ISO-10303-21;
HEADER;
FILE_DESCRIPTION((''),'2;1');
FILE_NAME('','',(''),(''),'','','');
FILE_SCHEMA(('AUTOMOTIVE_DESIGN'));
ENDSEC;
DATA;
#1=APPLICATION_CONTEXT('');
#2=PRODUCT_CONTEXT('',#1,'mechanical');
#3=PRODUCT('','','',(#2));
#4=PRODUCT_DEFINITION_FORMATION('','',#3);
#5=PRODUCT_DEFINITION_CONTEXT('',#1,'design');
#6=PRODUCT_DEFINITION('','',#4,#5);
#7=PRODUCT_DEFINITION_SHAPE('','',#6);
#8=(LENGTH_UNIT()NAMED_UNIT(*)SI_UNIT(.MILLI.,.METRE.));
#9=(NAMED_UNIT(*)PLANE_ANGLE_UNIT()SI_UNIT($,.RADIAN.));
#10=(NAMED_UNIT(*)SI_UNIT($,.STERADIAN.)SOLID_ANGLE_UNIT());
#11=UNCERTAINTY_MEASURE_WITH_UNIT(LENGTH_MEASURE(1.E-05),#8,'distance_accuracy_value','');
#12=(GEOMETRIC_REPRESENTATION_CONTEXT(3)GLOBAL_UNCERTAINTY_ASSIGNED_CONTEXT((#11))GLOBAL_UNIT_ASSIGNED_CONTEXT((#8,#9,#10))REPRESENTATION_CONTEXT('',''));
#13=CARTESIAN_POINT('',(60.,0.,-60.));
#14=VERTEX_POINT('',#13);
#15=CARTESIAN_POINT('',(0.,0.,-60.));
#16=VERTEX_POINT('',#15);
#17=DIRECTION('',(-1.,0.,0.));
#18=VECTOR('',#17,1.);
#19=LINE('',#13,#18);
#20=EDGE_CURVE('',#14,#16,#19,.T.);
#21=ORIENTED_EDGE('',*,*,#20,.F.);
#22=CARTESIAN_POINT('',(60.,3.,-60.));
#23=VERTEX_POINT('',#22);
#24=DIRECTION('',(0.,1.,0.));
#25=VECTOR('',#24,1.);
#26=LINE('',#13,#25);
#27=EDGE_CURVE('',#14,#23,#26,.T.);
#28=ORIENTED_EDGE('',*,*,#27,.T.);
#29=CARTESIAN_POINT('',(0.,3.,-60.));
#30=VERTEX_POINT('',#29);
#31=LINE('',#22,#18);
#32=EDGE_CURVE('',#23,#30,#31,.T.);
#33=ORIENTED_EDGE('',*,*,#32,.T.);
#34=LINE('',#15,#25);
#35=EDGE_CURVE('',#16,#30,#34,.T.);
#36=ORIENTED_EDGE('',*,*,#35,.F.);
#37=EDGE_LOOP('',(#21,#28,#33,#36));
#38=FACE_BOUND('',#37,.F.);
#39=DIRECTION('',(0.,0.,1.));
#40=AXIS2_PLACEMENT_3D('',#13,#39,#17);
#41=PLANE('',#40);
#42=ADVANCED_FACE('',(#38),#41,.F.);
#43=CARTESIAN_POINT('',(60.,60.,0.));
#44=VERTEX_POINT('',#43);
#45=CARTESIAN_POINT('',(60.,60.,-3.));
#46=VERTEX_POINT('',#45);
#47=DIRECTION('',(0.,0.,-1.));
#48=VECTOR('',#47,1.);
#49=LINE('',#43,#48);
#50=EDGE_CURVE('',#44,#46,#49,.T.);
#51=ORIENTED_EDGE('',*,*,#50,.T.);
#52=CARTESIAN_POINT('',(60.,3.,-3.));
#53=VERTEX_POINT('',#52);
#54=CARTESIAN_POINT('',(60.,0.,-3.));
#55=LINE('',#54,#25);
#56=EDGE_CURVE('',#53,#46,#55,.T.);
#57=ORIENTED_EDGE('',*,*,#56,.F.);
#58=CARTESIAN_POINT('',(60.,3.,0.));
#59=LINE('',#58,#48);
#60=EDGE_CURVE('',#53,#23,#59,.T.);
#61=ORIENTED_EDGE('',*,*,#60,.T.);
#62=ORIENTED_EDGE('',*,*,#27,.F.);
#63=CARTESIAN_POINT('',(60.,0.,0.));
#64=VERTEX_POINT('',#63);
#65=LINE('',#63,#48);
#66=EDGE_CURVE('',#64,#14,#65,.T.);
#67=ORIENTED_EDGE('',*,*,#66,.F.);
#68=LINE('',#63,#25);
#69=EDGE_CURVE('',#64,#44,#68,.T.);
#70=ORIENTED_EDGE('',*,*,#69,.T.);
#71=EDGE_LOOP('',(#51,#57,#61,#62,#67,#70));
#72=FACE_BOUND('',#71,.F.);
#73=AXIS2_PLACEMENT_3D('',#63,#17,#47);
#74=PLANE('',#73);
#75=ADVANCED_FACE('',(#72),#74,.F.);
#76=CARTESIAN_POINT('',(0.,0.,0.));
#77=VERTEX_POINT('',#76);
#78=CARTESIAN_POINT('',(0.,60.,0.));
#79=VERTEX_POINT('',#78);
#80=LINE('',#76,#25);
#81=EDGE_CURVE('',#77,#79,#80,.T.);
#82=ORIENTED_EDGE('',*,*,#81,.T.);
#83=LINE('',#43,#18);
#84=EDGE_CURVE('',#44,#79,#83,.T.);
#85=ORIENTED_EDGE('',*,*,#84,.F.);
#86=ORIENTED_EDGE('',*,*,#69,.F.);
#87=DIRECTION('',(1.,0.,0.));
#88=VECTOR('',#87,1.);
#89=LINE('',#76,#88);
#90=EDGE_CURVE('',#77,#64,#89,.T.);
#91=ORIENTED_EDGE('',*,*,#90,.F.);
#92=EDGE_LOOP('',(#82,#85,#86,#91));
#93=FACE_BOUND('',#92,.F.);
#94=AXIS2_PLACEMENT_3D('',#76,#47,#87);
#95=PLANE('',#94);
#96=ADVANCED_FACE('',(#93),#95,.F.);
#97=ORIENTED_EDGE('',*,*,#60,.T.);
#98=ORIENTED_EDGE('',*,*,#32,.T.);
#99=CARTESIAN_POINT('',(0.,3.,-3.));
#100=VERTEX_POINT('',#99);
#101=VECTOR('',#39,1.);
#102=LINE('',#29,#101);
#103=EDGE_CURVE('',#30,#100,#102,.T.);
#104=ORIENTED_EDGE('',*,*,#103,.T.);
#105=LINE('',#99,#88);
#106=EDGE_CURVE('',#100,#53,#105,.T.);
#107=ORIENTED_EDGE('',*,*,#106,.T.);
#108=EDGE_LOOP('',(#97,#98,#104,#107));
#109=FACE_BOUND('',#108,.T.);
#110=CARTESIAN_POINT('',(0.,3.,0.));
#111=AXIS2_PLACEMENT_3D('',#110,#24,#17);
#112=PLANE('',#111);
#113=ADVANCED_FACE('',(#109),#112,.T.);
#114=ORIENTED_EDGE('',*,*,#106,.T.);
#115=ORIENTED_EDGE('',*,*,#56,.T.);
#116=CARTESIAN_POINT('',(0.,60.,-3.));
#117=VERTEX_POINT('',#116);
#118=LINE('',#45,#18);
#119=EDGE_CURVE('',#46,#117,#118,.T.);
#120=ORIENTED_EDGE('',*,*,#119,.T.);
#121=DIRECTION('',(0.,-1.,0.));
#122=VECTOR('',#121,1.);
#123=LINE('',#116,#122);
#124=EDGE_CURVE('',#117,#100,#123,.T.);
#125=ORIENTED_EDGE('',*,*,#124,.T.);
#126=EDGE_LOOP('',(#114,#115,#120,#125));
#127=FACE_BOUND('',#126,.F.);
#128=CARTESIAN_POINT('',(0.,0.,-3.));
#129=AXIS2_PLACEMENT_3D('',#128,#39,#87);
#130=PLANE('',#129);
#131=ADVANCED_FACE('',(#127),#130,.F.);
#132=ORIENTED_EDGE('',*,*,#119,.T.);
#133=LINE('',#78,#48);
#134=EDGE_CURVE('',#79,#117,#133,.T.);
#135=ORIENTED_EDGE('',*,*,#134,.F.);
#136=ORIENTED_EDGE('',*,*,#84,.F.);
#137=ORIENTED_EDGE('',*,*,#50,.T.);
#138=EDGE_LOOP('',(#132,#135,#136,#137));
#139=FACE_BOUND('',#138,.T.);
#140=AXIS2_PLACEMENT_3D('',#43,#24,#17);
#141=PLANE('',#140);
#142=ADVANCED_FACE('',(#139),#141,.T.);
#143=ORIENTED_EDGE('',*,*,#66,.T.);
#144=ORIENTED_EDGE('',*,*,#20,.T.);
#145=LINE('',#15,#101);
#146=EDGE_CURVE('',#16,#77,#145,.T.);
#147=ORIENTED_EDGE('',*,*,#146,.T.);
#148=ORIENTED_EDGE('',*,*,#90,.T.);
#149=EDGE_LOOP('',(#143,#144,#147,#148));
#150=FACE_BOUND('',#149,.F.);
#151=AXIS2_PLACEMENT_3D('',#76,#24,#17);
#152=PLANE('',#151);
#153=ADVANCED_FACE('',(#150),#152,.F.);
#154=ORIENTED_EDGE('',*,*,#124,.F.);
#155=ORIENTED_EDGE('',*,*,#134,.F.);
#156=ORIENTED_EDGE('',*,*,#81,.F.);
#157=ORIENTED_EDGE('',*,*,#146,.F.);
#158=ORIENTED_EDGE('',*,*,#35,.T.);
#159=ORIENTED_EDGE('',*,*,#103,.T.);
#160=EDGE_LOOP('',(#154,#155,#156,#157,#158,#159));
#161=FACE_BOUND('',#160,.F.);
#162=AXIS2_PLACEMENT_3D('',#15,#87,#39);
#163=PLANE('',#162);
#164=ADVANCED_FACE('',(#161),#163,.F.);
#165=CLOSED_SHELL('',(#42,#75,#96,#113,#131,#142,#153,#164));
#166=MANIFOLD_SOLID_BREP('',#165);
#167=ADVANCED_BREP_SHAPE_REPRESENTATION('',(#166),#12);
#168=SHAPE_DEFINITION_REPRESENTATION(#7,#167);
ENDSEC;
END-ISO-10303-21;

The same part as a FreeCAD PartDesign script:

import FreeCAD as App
import Part
import Sketcher
from FreeCAD import Vector
Q = App.Units.Quantity


def add_polygon(sketch, points):
    """Adds a closed chain of lines whose ends are joined by coincident constraints."""
    first, n = sketch.GeometryCount, len(points)
    for a, b in zip(points, points[1:] + points[:1]):
        sketch.addGeometry(Part.LineSegment(App.Vector(*a, 0), App.Vector(*b, 0)), False)
    for i in range(n):
        sketch.addConstraint(Sketcher.Constraint("Coincident", first + i, 2, first + (i + 1) % n, 1))

doc = App.newDocument("Part")
body = doc.addObject("PartDesign::Body", "Body")

sketch1 = body.newObject("Sketcher::SketchObject", "Sketch")
sketch1.AttachmentSupport = (doc.getObject("XZ_Plane"), [""])
sketch1.MapMode = "FlatFace"
add_polygon(sketch1, [(0, -60), (0, 0), (60, 0), (60, -60)])
sketch1.addConstraint(Sketcher.Constraint("Vertical", 0))
sketch1.addConstraint(Sketcher.Constraint("Horizontal", 1))
sketch1.addConstraint(Sketcher.Constraint("Vertical", 2))
sketch1.addConstraint(Sketcher.Constraint("Horizontal", 3))
sketch1.addConstraint(Sketcher.Constraint("Coincident", 0, 2, -1, 1))
sketch1.addConstraint(Sketcher.Constraint("Equal", 3, 0))
sketch1.addConstraint(Sketcher.Constraint("DistanceX", 1, 1, 1, 2, Q("60 mm")))
pad1 = body.newObject("PartDesign::Pad", "Pad")
pad1.Profile = sketch1
pad1.Length = 3
pad1.Reversed = True

sketch2 = body.newObject("Sketcher::SketchObject", "Sketch001")
sketch2.AttachmentSupport = (doc.getObject("XY_Plane"), [""])
sketch2.MapMode = "FlatFace"
add_polygon(sketch2, [(0, 3), (60, 3), (60, 60), (0, 60)])
sketch2.addConstraint(Sketcher.Constraint("Horizontal", 0))
sketch2.addConstraint(Sketcher.Constraint("Vertical", 1))
sketch2.addConstraint(Sketcher.Constraint("Horizontal", 2))
sketch2.addConstraint(Sketcher.Constraint("Vertical", 3))
sketch2.addConstraint(Sketcher.Constraint("PointOnObject", 2, 2, -2))
sketch2.addConstraint(Sketcher.Constraint("DistanceX", 0, 1, 0, 2, Q("60 mm")))
sketch2.addConstraint(Sketcher.Constraint("DistanceY", -1, 1, 1, 2, Q("60 mm")))
sketch2.addConstraint(Sketcher.Constraint("DistanceY", 1, 1, 1, 2, Q("57 mm")))
pad2 = body.newObject("PartDesign::Pad", "Pad001")
pad2.Profile = sketch2
pad2.Length = 3
pad2.Reversed = True

doc.recompute()
